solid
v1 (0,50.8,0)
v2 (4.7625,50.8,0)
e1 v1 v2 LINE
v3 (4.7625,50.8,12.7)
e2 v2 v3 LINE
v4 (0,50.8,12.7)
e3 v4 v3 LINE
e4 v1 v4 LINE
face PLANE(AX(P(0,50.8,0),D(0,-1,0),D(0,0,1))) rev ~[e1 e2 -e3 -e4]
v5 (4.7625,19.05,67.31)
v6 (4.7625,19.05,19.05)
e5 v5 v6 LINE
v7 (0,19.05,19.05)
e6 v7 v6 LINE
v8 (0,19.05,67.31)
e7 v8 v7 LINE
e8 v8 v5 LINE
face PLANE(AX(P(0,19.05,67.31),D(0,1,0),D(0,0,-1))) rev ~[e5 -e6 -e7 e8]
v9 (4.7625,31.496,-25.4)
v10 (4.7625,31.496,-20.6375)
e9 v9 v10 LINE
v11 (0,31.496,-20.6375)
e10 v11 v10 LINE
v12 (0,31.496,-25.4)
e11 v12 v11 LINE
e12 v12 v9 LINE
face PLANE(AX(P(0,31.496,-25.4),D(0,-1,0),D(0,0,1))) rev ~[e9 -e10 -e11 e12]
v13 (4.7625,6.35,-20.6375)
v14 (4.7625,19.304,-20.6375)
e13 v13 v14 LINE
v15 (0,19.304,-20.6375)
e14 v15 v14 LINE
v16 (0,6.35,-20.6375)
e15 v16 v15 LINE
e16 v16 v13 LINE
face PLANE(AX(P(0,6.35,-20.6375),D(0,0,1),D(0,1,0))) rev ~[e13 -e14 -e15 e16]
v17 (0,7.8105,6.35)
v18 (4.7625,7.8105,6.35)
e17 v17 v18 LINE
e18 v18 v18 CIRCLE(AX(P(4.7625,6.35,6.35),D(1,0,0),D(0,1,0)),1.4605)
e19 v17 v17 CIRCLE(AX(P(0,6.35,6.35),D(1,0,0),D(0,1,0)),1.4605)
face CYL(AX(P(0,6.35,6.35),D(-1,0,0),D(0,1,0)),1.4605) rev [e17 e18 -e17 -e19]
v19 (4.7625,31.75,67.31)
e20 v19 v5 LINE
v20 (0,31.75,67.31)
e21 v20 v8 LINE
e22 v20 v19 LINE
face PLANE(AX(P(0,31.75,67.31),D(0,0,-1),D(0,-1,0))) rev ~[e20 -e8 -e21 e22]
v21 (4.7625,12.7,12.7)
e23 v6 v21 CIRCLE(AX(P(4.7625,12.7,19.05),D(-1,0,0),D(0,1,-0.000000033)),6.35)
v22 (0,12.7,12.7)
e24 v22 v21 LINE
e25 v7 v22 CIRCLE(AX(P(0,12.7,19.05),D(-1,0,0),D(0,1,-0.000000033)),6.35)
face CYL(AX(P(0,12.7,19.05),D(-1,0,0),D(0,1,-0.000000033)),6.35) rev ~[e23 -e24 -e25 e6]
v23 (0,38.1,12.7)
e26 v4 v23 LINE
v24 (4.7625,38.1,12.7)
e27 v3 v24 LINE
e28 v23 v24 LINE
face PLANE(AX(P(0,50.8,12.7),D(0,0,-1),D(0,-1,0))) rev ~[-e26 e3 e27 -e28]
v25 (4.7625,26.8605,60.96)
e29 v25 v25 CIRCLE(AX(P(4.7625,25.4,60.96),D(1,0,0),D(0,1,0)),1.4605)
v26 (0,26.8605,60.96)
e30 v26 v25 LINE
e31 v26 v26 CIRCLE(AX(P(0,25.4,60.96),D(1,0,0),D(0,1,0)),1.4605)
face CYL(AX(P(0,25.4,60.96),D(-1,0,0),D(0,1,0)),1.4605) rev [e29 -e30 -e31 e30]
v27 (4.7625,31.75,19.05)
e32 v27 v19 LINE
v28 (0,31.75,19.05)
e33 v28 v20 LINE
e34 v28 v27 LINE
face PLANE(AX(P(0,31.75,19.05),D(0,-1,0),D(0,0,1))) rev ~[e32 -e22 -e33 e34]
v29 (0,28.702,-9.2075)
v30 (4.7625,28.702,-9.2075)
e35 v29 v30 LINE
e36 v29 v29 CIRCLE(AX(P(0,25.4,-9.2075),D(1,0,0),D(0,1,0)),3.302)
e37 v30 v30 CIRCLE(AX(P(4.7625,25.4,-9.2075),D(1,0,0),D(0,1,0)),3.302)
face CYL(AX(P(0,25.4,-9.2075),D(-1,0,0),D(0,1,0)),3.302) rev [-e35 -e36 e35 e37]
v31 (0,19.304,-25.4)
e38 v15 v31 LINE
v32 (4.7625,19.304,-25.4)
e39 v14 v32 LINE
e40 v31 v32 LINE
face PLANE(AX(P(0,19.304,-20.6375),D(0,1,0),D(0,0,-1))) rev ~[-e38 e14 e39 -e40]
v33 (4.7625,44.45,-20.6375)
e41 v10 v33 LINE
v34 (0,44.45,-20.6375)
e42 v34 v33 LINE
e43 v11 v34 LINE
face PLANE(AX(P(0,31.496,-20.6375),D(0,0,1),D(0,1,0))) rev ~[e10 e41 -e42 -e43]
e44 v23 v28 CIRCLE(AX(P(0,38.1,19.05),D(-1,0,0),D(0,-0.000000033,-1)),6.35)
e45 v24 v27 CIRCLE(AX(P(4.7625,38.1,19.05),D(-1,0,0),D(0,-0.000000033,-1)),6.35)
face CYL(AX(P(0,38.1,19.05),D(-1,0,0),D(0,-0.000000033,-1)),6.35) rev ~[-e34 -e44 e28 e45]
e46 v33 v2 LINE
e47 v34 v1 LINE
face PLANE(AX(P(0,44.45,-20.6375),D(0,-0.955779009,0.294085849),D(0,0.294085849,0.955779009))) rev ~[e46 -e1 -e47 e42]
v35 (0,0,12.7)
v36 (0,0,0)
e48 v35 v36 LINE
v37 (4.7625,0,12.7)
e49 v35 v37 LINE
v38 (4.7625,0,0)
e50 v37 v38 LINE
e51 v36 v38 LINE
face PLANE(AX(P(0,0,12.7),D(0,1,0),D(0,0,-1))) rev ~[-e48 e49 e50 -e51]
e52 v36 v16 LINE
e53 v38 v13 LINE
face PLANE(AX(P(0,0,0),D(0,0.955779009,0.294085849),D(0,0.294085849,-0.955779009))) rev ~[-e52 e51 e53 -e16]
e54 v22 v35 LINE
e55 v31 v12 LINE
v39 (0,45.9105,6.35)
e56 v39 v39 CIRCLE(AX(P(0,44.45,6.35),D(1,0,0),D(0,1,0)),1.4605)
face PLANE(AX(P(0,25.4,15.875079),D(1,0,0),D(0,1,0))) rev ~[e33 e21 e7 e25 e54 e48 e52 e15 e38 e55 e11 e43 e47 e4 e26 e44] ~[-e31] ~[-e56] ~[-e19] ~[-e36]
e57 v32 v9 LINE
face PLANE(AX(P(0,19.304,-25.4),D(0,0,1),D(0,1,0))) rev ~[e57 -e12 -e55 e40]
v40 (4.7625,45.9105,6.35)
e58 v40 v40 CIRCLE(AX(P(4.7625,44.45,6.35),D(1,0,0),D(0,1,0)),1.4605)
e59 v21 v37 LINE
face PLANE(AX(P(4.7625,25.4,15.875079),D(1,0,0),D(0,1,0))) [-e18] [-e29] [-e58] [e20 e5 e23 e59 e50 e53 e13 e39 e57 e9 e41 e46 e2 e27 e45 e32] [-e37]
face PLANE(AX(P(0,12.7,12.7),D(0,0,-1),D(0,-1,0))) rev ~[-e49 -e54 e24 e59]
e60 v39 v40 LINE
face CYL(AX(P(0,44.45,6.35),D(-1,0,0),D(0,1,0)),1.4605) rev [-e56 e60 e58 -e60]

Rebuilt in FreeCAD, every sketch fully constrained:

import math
import FreeCAD as App
import Part
import Sketcher

V = App.Vector
Q = App.Units.Quantity

doc = App.newDocument("Part")
body = doc.addObject("PartDesign::Body", "Body")

sketch1 = doc.addObject("Sketcher::SketchObject", "Sketch")
body.addObject(sketch1)
sketch1.AttachmentSupport = (doc.YZ_Plane, [""])
sketch1.MapMode = "FlatFace"
sketch1.addGeometry([
    Part.LineSegment(V(12.7, 12.7, 0), V(0, 12.7, 0)),
    Part.LineSegment(V(0, 12.7, 0), V(0, 0, 0)),
    Part.LineSegment(V(0, 0, 0), V(6.3, -20.6, 0)),
    Part.LineSegment(V(6.3, -20.6, 0), V(19.3, -20.6, 0)),
    Part.LineSegment(V(19.3, -20.6, 0), V(19.3, -25.4, 0)),
    Part.LineSegment(V(19.3, -25.4, 0), V(31.5, -25.4, 0)),
    Part.LineSegment(V(31.5, -25.4, 0), V(31.5, -20.6, 0)),
    Part.LineSegment(V(31.5, -20.6, 0), V(44.5, -20.6, 0)),
    Part.LineSegment(V(44.5, -20.6, 0), V(50.8, 0, 0)),
    Part.LineSegment(V(50.8, 0, 0), V(50.8, 12.7, 0)),
    Part.LineSegment(V(50.8, 12.7, 0), V(38.1, 12.7, 0)),
    Part.ArcOfCircle(Part.Circle(V(38.1, 19.1, 0), V(0, 0, 1), 6.4), math.radians(-180), math.radians(-90)),
    Part.LineSegment(V(31.8, 19.1, 0), V(31.8, 67.3, 0)),
    Part.LineSegment(V(31.8, 67.3, 0), V(19.1, 67.3, 0)),
    Part.LineSegment(V(19.1, 67.3, 0), V(19.1, 19.1, 0)),
    Part.ArcOfCircle(Part.Circle(V(12.7, 19.1, 0), V(0, 0, 1), 6.4), math.radians(-90), math.radians(0)),
    Part.Circle(V(25.4, -9.2, 0), V(0, 0, 1), 3.3),
    Part.Circle(V(6.3, 6.3, 0), V(0, 0, 1), 1.5),
    Part.Circle(V(44.5, 6.3, 0), V(0, 0, 1), 1.5),
    Part.Circle(V(25.4, 61, 0), V(0, 0, 1), 1.5),
], False)
sketch1.addConstraint([
    Sketcher.Constraint("Coincident", 0, 2, 1, 1),
    Sketcher.Constraint("Coincident", 1, 2, 2, 1),
    Sketcher.Constraint("Coincident", 2, 2, 3, 1),
    Sketcher.Constraint("Coincident", 3, 2, 4, 1),
    Sketcher.Constraint("Coincident", 4, 2, 5, 1),
    Sketcher.Constraint("Coincident", 5, 2, 6, 1),
    Sketcher.Constraint("Coincident", 6, 2, 7, 1),
    Sketcher.Constraint("Coincident", 7, 2, 8, 1),
    Sketcher.Constraint("Coincident", 8, 2, 9, 1),
    Sketcher.Constraint("Coincident", 9, 2, 10, 1),
    Sketcher.Constraint("Tangent", 10, 2, 11, 2),
    Sketcher.Constraint("Tangent", 11, 1, 12, 1),
    Sketcher.Constraint("Coincident", 12, 2, 13, 1),
    Sketcher.Constraint("Coincident", 13, 2, 14, 1),
    Sketcher.Constraint("Tangent", 14, 2, 15, 2),
    Sketcher.Constraint("Tangent", 15, 1, 0, 1),
    Sketcher.Constraint("Horizontal", 0),
    Sketcher.Constraint("Vertical", 1),
    Sketcher.Constraint("Horizontal", 3),
    Sketcher.Constraint("Vertical", 4),
    Sketcher.Constraint("Horizontal", 5),
    Sketcher.Constraint("Vertical", 6),
    Sketcher.Constraint("Horizontal", 7),
    Sketcher.Constraint("Vertical", 9),
    Sketcher.Constraint("Horizontal", 10),
    Sketcher.Constraint("Vertical", 12),
    Sketcher.Constraint("Horizontal", 13),
    Sketcher.Constraint("Vertical", 14),
    Sketcher.Constraint("Coincident", 1, 2, -1, 1),
    Sketcher.Constraint("Equal", 11, 15),
    Sketcher.Constraint("Equal", 17, 18),
    Sketcher.Constraint("Equal", 18, 19),
    Sketcher.Constraint("PointOnObject", 8, 2, -1),
    Sketcher.Constraint("Horizontal", 11, 3, 15, 3),
    Sketcher.Constraint("Horizontal", 17, 3, 18, 3),
    Sketcher.Constraint("Horizontal", 3, 2, 6, 2),
    Sketcher.Constraint("Vertical", 16, 3, 19, 3),
    Sketcher.Constraint("Vertical", 17, 3, 2, 2),
    Sketcher.Constraint("Vertical", 18, 3, 7, 2),
    Sketcher.Constraint("Equal", 3, 7),
    Sketcher.Constraint("Equal", 0, 10),
    Sketcher.Constraint("Equal", 10, 13),
    Sketcher.Constraint("Equal", 13, 1),
    Sketcher.Constraint("Equal", 2, 8),
    Sketcher.Constraint("Diameter", 16, Q("0.26 in")),
    Sketcher.Constraint("Radius", 11, Q("0.25 in")),
    Sketcher.Constraint("Diameter", 17, Q("0.115 in")),
    Sketcher.Constraint("DistanceX", 0, 2, 0, 1, Q("0.5 in")),
    Sketcher.Constraint("DistanceY", 12, 1, 12, 2, Q("1.9 in")),
    Sketcher.Constraint("DistanceX", -1, 1, 16, 3, Q("1 in")),
    Sketcher.Constraint("DistanceY", 4, 2, -1, 1, Q("1 in")),
    Sketcher.Constraint("DistanceX", 3, 1, 3, 2, Q("0.51 in")),
    Sketcher.Constraint("DistanceX", 5, 1, 5, 2, Q("0.48 in")),
    Sketcher.Constraint("DistanceY", -1, 1, 19, 3, Q("2.4 in")),
    Sketcher.Constraint("DistanceY", 17, 3, 15, 3, Q("0.5 in")),
    Sketcher.Constraint("DistanceY", 4, 2, 4, 1, Q("0.1875 in")),
    Sketcher.Constraint("DistanceY", 2, 2, 16, 3, Q("0.45 in")),
])
pad1 = doc.addObject("PartDesign::Pad", "Pad")
body.addObject(pad1)
pad1.Profile = sketch1
pad1.Length = Q("0.1875 in")

doc.recompute()
